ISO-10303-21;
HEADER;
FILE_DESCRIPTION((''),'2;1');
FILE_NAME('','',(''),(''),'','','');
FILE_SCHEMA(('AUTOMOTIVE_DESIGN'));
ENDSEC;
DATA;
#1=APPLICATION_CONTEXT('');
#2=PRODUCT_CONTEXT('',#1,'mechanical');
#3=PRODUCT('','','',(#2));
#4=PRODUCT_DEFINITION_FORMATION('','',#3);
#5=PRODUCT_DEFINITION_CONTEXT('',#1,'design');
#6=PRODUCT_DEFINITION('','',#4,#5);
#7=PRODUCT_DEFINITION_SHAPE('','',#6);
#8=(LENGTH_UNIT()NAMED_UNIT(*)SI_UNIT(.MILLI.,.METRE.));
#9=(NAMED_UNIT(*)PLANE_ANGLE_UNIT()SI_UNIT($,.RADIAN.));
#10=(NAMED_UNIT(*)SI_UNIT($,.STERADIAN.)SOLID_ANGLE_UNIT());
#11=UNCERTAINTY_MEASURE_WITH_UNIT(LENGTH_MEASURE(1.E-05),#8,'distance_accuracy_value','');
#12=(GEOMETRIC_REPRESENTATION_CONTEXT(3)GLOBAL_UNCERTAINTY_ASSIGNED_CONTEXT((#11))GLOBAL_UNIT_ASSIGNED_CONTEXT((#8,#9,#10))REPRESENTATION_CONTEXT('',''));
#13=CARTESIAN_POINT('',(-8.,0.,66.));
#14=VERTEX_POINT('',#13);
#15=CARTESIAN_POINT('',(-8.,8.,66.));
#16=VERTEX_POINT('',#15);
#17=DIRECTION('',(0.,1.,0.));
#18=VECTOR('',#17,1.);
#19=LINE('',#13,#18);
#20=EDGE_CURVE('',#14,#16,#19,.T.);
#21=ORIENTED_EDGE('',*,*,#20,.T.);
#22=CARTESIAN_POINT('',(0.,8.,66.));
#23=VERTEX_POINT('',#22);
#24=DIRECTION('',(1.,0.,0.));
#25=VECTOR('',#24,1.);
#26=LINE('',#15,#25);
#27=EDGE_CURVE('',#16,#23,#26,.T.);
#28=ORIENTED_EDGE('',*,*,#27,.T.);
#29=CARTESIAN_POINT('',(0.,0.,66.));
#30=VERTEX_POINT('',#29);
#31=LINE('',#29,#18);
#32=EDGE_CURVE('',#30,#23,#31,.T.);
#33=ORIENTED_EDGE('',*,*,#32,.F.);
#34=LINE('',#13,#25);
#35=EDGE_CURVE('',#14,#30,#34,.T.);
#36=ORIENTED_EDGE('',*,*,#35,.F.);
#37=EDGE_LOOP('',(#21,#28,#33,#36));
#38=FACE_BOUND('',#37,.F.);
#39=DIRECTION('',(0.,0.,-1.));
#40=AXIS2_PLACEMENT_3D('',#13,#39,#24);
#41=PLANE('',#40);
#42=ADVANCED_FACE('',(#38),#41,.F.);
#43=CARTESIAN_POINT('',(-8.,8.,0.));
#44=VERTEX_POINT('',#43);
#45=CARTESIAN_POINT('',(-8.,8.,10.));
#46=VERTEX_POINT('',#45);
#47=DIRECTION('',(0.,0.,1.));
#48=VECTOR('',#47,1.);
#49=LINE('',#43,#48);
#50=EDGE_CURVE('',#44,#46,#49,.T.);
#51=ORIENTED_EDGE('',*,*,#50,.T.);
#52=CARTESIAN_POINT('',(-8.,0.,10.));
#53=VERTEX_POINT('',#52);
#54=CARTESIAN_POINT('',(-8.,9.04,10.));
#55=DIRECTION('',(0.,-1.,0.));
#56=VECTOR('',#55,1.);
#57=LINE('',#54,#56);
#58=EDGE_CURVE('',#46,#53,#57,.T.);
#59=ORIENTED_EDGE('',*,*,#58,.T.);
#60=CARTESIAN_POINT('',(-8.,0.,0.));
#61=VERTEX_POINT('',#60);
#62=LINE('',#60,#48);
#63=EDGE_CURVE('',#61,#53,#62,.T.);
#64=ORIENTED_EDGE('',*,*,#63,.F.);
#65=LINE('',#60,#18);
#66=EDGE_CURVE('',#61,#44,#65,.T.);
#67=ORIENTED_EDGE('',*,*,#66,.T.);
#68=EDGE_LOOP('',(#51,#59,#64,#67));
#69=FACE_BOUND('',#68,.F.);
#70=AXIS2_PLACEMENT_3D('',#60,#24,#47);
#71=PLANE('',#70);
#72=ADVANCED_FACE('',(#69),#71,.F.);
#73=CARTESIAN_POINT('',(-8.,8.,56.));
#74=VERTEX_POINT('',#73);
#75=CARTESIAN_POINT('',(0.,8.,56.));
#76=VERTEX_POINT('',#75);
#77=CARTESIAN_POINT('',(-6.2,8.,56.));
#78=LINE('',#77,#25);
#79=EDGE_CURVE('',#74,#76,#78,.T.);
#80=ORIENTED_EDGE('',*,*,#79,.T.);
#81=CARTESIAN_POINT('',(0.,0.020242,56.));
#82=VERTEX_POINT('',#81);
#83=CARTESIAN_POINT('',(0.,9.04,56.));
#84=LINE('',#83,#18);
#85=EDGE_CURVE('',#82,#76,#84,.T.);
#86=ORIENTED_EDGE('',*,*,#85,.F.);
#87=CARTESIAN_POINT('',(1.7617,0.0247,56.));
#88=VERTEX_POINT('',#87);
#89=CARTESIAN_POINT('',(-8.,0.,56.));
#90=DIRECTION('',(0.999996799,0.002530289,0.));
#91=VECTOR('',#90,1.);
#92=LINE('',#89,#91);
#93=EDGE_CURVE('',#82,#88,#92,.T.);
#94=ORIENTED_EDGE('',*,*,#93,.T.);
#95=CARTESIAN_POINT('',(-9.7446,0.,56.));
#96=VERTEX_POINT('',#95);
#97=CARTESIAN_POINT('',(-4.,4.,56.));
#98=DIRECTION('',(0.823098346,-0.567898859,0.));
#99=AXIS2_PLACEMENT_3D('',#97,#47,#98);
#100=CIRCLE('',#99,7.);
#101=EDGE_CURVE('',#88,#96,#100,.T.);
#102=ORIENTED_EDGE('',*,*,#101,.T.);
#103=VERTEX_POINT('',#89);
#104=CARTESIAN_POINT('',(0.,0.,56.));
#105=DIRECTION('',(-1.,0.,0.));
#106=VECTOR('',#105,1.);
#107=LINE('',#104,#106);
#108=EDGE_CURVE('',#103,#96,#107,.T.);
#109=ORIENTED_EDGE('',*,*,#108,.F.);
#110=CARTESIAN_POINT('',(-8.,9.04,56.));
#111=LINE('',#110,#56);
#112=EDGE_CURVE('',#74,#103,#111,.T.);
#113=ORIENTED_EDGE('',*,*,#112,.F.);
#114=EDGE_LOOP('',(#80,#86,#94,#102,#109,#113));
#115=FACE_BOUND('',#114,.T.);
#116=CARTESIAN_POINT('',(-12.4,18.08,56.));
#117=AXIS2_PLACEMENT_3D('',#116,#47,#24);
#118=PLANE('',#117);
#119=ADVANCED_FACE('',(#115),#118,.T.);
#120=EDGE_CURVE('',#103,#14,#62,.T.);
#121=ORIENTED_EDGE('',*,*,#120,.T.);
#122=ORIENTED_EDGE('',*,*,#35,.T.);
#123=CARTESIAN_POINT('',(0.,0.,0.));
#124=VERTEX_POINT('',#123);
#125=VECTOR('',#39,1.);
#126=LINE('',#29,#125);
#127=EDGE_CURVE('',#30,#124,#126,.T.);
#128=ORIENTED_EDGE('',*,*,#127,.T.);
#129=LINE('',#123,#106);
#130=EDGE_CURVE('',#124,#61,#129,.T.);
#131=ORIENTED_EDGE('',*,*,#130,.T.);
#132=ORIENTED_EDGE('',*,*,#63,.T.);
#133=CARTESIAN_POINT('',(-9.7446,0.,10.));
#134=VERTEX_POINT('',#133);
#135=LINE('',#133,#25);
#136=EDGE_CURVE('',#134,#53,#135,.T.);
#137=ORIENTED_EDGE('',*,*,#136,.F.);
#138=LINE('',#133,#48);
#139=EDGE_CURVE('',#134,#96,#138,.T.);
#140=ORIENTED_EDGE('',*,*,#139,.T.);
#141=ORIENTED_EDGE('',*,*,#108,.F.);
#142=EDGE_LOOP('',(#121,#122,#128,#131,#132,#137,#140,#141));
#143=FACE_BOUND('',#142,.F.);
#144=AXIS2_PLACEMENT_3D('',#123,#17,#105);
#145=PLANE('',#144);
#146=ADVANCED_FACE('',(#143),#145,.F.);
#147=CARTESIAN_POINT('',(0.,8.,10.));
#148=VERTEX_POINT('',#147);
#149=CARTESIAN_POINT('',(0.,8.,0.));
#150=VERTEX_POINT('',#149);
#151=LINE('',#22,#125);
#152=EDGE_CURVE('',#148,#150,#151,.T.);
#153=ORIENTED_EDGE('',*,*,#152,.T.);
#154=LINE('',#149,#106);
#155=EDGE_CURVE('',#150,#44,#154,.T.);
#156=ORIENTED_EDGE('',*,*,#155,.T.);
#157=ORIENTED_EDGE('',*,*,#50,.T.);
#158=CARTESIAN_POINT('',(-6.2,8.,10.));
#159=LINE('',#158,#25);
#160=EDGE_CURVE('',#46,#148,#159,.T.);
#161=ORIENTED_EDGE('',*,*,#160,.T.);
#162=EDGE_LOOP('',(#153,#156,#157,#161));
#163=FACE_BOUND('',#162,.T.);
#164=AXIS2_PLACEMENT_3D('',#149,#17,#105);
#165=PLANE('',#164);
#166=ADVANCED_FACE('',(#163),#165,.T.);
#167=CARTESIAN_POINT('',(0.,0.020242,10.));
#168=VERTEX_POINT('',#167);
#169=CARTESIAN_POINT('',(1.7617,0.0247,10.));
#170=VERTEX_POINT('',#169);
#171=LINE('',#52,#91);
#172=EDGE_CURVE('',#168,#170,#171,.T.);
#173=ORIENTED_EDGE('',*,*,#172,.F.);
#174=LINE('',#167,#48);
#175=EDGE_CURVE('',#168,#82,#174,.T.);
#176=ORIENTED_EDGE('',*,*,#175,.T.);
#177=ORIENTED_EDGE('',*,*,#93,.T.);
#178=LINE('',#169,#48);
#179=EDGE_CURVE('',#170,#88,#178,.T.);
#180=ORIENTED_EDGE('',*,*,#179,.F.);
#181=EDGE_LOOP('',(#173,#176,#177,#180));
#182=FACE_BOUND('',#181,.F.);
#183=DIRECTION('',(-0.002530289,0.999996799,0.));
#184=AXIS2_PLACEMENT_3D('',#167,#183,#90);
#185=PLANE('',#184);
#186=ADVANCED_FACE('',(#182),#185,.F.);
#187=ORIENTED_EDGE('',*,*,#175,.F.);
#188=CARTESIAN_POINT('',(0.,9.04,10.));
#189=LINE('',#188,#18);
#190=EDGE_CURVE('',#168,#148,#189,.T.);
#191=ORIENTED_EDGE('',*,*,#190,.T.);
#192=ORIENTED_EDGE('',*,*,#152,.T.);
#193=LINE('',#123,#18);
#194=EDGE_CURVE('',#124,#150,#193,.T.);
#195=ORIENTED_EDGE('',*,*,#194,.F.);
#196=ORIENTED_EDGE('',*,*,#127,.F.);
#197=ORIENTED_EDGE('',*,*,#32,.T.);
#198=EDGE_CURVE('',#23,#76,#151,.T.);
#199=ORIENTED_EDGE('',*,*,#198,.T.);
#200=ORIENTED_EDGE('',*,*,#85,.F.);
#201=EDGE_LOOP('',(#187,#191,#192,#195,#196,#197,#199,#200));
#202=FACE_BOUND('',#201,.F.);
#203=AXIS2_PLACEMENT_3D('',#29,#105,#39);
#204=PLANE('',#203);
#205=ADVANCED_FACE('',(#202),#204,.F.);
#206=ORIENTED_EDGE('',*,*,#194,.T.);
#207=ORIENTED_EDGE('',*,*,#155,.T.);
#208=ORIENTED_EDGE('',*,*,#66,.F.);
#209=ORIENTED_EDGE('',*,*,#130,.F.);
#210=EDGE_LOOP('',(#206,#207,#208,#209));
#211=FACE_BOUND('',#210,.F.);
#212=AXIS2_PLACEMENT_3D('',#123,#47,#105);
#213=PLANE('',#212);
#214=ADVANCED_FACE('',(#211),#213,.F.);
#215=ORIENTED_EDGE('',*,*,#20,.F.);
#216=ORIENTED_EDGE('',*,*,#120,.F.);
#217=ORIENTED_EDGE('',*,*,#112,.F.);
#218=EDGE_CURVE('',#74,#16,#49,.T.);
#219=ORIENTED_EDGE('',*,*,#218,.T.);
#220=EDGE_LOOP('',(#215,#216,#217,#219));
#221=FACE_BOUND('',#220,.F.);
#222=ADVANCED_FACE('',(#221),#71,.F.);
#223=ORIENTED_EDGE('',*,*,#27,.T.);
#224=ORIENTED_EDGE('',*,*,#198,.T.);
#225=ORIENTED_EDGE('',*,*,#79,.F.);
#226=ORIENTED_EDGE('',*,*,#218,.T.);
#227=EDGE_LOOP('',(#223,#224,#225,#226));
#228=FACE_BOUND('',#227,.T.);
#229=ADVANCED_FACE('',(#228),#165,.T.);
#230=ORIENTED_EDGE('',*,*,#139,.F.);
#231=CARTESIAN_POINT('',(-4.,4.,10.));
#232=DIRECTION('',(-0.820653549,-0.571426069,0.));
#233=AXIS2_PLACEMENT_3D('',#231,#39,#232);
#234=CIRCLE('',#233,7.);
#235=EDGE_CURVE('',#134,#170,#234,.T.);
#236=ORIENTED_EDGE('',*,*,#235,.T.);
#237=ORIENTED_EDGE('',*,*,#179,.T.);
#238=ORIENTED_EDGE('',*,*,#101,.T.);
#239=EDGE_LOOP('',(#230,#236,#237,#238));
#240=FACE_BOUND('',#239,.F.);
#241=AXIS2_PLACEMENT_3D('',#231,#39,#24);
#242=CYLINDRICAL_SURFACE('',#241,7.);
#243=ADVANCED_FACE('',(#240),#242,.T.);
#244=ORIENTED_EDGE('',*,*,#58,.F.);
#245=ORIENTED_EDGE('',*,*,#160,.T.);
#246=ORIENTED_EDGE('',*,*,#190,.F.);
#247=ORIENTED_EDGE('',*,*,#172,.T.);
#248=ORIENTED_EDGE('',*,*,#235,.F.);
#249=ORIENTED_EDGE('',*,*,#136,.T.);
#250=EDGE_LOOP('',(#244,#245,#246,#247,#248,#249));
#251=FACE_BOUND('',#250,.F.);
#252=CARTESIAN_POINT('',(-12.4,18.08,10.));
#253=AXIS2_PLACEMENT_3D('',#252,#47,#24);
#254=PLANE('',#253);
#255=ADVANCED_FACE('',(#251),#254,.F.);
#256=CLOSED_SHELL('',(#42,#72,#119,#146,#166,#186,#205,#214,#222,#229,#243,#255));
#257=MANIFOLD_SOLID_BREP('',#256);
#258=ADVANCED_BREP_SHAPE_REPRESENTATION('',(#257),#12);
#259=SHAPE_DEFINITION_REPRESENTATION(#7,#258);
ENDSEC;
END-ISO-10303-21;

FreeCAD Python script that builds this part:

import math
import FreeCAD as App
import Part
import Sketcher

V = App.Vector


def add_polygon(sketch, points):
    """Adds a closed chain of lines whose ends are joined by coincident constraints."""
    first, n = sketch.GeometryCount, len(points)
    for a, b in zip(points, points[1:] + points[:1]):
        sketch.addGeometry(Part.LineSegment(App.Vector(*a, 0), App.Vector(*b, 0)), False)
    for i in range(n):
        sketch.addConstraint(Sketcher.Constraint("Coincident", first + i, 2, first + (i + 1) % n, 1))

doc = App.newDocument("Part")
params = doc.addObject("Spreadsheet::Sheet", "Params")
for row, (alias, value) in enumerate([
    ("sketch1_width", "8 mm"),
    ("sketch1_height", "66 mm"),
    ("pad1_length", "8 mm"),
    ("sketch2_radius", "7 mm"),
    ("pad2_length", "46 mm"),
], start=1):
    params.set(f"A{row}", alias)
    params.set(f"B{row}", "=" + value)
    params.setAlias(f"B{row}", alias)

body = doc.addObject("PartDesign::Body", "Body")

# Sketch on XZ plane
sketch1 = body.newObject("Sketcher::SketchObject", "Sketch")
sketch1.AttachmentSupport = (doc.getObject("XZ_Plane"), [""])
sketch1.MapMode = "FlatFace"
add_polygon(sketch1, [(0, 66), (0, 0), (-8, 0), (-8, 66)])  # lines 0-3
sketch1.addConstraint(Sketcher.Constraint("Vertical", 0))
sketch1.addConstraint(Sketcher.Constraint("Horizontal", 1))
sketch1.addConstraint(Sketcher.Constraint("Vertical", 2))
sketch1.addConstraint(Sketcher.Constraint("Horizontal", 3))
sketch1.addConstraint(Sketcher.Constraint("Coincident", 0, 2, -1, 1))
sketch1.addConstraint(Sketcher.Constraint("DistanceX", 1, 2, 1, 1, 8.0))
sketch1.addConstraint(Sketcher.Constraint("DistanceY", 0, 2, 0, 1, 66.0))
sketch1.setExpression("Constraints[9]", "Params.sketch1_width")
sketch1.setExpression("Constraints[10]", "Params.sketch1_height")
pad1 = body.newObject("PartDesign::Pad", "Pad")
pad1.Profile = sketch1
pad1.setExpression("Length", "Params.pad1_length")
pad1.Reversed = True

# Sketch on XY plane
sketch2 = body.newObject("Sketcher::SketchObject", "Sketch001")
sketch2.AttachmentSupport = (doc.getObject("XY_Plane"), [""])
sketch2.MapMode = "FlatFace"
sketch2.AttachmentOffset = App.Placement(V(0, 0, 10), App.Rotation())
sketch2.addGeometry(Part.LineSegment(V(0, 0, 0), V(0, 0.02, 0)), False)
sketch2.addGeometry(Part.LineSegment(V(0, 0.02, 0), V(1.762, 0.025, 0)), False)
sketch2.addGeometry(Part.ArcOfCircle(Part.Circle(V(-4, 4, 0), V(0, 0, 1), 7), math.radians(-35), math.radians(215)), False)
sketch2.addGeometry(Part.LineSegment(V(-9.745, 0, 0), V(0, 0, 0)), False)
sketch2.addConstraint(Sketcher.Constraint("Coincident", 0, 2, 1, 1))
sketch2.addConstraint(Sketcher.Constraint("Coincident", 1, 2, 2, 1))
sketch2.addConstraint(Sketcher.Constraint("Coincident", 2, 2, 3, 1))
sketch2.addConstraint(Sketcher.Constraint("Coincident", 3, 2, 0, 1))
sketch2.addConstraint(Sketcher.Constraint("Vertical", 0))
sketch2.addConstraint(Sketcher.Constraint("Horizontal", 3))
sketch2.addConstraint(Sketcher.Constraint("Coincident", 3, 2, -1, 1))
sketch2.addConstraint(Sketcher.Constraint("Radius", 2, 7.0))
sketch2.addConstraint(Sketcher.Constraint("DistanceX", 2, 3, -1, 1, 4.0))
sketch2.addConstraint(Sketcher.Constraint("DistanceY", -1, 1, 2, 3, 4.0))
sketch2.addConstraint(Sketcher.Constraint("DistanceY", 0, 1, 0, 2, 0.0202))
sketch2.addConstraint(Sketcher.Constraint("Distance", 1, 1.7617))
sketch2.setExpression("Constraints[7]", "Params.sketch2_radius")
pad2 = body.newObject("PartDesign::Pad", "Pad001")
pad2.Profile = sketch2
pad2.setExpression("Length", "Params.pad2_length")

doc.recompute()
